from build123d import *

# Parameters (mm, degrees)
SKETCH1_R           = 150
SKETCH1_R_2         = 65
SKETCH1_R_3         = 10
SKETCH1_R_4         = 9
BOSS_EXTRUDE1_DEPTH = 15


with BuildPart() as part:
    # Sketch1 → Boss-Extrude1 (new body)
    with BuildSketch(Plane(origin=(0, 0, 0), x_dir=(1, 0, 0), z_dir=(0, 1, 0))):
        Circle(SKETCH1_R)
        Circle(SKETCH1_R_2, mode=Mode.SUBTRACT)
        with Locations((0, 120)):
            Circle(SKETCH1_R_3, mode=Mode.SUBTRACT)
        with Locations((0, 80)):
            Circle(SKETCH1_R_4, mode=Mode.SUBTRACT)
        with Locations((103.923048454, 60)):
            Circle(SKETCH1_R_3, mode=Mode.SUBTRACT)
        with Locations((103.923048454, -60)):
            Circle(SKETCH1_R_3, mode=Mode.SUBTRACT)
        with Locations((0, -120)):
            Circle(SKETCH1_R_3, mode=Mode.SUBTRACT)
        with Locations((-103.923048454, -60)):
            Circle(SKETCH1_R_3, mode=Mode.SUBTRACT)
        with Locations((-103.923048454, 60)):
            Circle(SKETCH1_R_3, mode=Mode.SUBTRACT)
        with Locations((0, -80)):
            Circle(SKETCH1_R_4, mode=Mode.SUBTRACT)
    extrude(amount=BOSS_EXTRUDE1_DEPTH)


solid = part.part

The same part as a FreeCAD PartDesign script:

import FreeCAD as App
import Part
import Sketcher

V = App.Vector

doc = App.newDocument("Part")
body = doc.addObject("PartDesign::Body", "Body")

sketch1 = doc.addObject("Sketcher::SketchObject", "Sketch")
body.addObject(sketch1)
sketch1.AttachmentSupport = (doc.XZ_Plane, [""])
sketch1.MapMode = "FlatFace"
sketch1.addGeometry(Part.Circle(V(0, 0, 0), V(0, 0, 1), 150), False)
sketch1.addGeometry(Part.Circle(V(-104, 60, 0), V(0, 0, 1), 10), False)
sketch1.addGeometry(Part.Circle(V(0, 120, 0), V(0, 0, 1), 10), False)
sketch1.addGeometry(Part.Circle(V(0, 80, 0), V(0, 0, 1), 9), False)
sketch1.addGeometry(Part.Circle(V(104, 60, 0), V(0, 0, 1), 10), False)
sketch1.addGeometry(Part.Circle(V(-104, -60, 0), V(0, 0, 1), 10), False)
sketch1.addGeometry(Part.Circle(V(0, 0, 0), V(0, 0, 1), 65), False)
sketch1.addGeometry(Part.Circle(V(104, -60, 0), V(0, 0, 1), 10), False)
sketch1.addGeometry(Part.Circle(V(0, -80, 0), V(0, 0, 1), 9), False)
sketch1.addGeometry(Part.Circle(V(0, -120, 0), V(0, 0, 1), 10), False)
sketch1.addConstraint(Sketcher.Constraint("Coincident", 0, 3, -1, 1))
sketch1.addConstraint(Sketcher.Constraint("Coincident", 6, 3, -1, 1))
sketch1.addConstraint(Sketcher.Constraint("Equal", 1, 2))
sketch1.addConstraint(Sketcher.Constraint("Equal", 2, 4))
sketch1.addConstraint(Sketcher.Constraint("Equal", 4, 5))
sketch1.addConstraint(Sketcher.Constraint("Equal", 5, 7))
sketch1.addConstraint(Sketcher.Constraint("Equal", 3, 8))
sketch1.addConstraint(Sketcher.Constraint("Equal", 7, 9))
sketch1.addConstraint(Sketcher.Constraint("Symmetric", 4, 3, 5, 3, -1, 1))
sketch1.addConstraint(Sketcher.Constraint("Symmetric", 1, 3, 7, 3, -1, 1))
sketch1.addConstraint(Sketcher.Constraint("Symmetric", 3, 3, 8, 3, -1, 1))
sketch1.addConstraint(Sketcher.Constraint("Symmetric", 2, 3, 9, 3, -1, 1))
sketch1.addConstraint(Sketcher.Constraint("Symmetric", 1, 3, 4, 3, -2))
sketch1.addConstraint(Sketcher.Constraint("PointOnObject", 2, 3, -2))
sketch1.addConstraint(Sketcher.Constraint("PointOnObject", 3, 3, -2))
sketch1.addConstraint(Sketcher.Constraint("Diameter", 0, 300.0))
sketch1.addConstraint(Sketcher.Constraint("Diameter", 1, 20.0))
sketch1.addConstraint(Sketcher.Constraint("Diameter", 3, 18.0))
sketch1.addConstraint(Sketcher.Constraint("Diameter", 6, 130.0))
sketch1.addConstraint(Sketcher.Constraint("DistanceY", -1, 1, 1, 3, 60.0))
sketch1.addConstraint(Sketcher.Constraint("DistanceY", -1, 1, 2, 3, 120.0))
sketch1.addConstraint(Sketcher.Constraint("DistanceY", -1, 1, 3, 3, 80.0))
sketch1.addConstraint(Sketcher.Constraint("DistanceX", 1, 3, -1, 1, 103.923048))
pad1 = doc.addObject("PartDesign::Pad", "Pad")
body.addObject(pad1)
pad1.Profile = sketch1
pad1.Length = 15
pad1.Reversed = True

doc.recompute()
